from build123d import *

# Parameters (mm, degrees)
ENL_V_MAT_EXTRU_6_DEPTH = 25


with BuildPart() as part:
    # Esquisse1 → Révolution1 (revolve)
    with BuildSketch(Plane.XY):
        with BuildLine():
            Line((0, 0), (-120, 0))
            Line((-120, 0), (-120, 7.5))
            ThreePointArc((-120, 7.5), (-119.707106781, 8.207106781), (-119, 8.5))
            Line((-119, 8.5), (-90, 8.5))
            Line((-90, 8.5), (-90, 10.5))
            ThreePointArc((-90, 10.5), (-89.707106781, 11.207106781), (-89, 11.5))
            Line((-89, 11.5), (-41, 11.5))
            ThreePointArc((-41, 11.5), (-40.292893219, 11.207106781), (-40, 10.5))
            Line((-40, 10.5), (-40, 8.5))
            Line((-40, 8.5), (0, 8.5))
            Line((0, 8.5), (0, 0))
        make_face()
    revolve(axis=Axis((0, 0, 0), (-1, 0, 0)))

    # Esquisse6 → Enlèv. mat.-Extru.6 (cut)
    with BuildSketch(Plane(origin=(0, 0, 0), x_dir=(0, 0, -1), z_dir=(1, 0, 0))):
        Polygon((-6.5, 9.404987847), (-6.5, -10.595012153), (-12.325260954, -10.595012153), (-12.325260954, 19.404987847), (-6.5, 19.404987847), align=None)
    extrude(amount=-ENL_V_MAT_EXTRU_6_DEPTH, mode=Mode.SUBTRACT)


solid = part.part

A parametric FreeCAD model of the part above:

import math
import FreeCAD as App
import Part
import Sketcher

V = App.Vector
Q = App.Units.Quantity

doc = App.newDocument("Part")
body = doc.addObject("PartDesign::Body", "Body")

# Sketch on XY plane
sketch1 = body.newObject("Sketcher::SketchObject", "Sketch")
sketch1.AttachmentSupport = (doc.getObject("XY_Plane"), [""])
sketch1.MapMode = "FlatFace"
sketch1.addGeometry([
    Part.LineSegment(V(-120, 0, 0), V(0, 0, 0)),  # 0
    Part.LineSegment(V(0, 0, 0), V(0, 8.5, 0)),  # 1
    Part.LineSegment(V(0, 8.5, 0), V(-40, 8.5, 0)),  # 2
    Part.LineSegment(V(-40, 8.5, 0), V(-40, 10.5, 0)),  # 3
    Part.ArcOfCircle(Part.Circle(V(-41, 10.5, 0), V(0, 0, 1), 1), math.radians(0), math.radians(90)),  # 4
    Part.LineSegment(V(-41, 11.5, 0), V(-89, 11.5, 0)),  # 5
    Part.ArcOfCircle(Part.Circle(V(-89, 10.5, 0), V(0, 0, 1), 1), math.radians(90), math.radians(180)),  # 6
    Part.LineSegment(V(-90, 10.5, 0), V(-90, 8.5, 0)),  # 7
    Part.LineSegment(V(-90, 8.5, 0), V(-119, 8.5, 0)),  # 8
    Part.ArcOfCircle(Part.Circle(V(-119, 7.5, 0), V(0, 0, 1), 1), math.radians(90), math.radians(180)),  # 9
    Part.LineSegment(V(-120, 7.5, 0), V(-120, 0, 0)),  # 10
], False)
sketch1.addConstraint([
    Sketcher.Constraint("Coincident", 0, 2, 1, 1),
    Sketcher.Constraint("Coincident", 1, 2, 2, 1),
    Sketcher.Constraint("Coincident", 2, 2, 3, 1),
    Sketcher.Constraint("Tangent", 3, 2, 4, 1),
    Sketcher.Constraint("Tangent", 4, 2, 5, 1),
    Sketcher.Constraint("Tangent", 5, 2, 6, 1),
    Sketcher.Constraint("Tangent", 6, 2, 7, 1),
    Sketcher.Constraint("Coincident", 7, 2, 8, 1),
    Sketcher.Constraint("Tangent", 8, 2, 9, 1),
    Sketcher.Constraint("Tangent", 9, 2, 10, 1),
    Sketcher.Constraint("Coincident", 10, 2, 0, 1),
    Sketcher.Constraint("Horizontal", 0),
    Sketcher.Constraint("Vertical", 1),
    Sketcher.Constraint("Horizontal", 2),
    Sketcher.Constraint("Vertical", 3),
    Sketcher.Constraint("Horizontal", 5),
    Sketcher.Constraint("Vertical", 7),
    Sketcher.Constraint("Horizontal", 8),
    Sketcher.Constraint("Vertical", 10),
    Sketcher.Constraint("Coincident", 0, 2, -1, 1),
    Sketcher.Constraint("Equal", 4, 6),
    Sketcher.Constraint("Equal", 6, 9),
    Sketcher.Constraint("Horizontal", 2, 2, 7, 2),
    Sketcher.Constraint("Radius", 4, Q("1 mm")),
    Sketcher.Constraint("DistanceX", 0, 1, 0, 2, Q("120 mm")),
    Sketcher.Constraint("DistanceX", 2, 2, 2, 1, Q("40 mm")),
    Sketcher.Constraint("DistanceX", 5, 2, 5, 1, Q("48 mm")),
    Sketcher.Constraint("DistanceY", 3, 1, 3, 2, Q("2 mm")),
    Sketcher.Constraint("DistanceY", 1, 1, 1, 2, Q("8.5 mm")),
])
revolution = body.newObject("PartDesign::Revolution", "Revolution")
revolution.Profile = sketch1
revolution.ReferenceAxis = (sketch1, ["H_Axis"])
revolution.Angle = 360

# Sketch on YZ plane
sketch2 = body.newObject("Sketcher::SketchObject", "Sketch001")
sketch2.AttachmentSupport = (doc.getObject("YZ_Plane"), [""])
sketch2.MapMode = "FlatFace"
sketch2.addGeometry([
    Part.LineSegment(V(-11, 6, 0), V(19, 6, 0)),
    Part.LineSegment(V(19, 6, 0), V(19, 12, 0)),
    Part.LineSegment(V(19, 12, 0), V(-11, 12, 0)),
    Part.LineSegment(V(-11, 12, 0), V(-11, 6, 0)),
], False)
sketch2.addConstraint([
    Sketcher.Constraint("Coincident", 0, 2, 1, 1),
    Sketcher.Constraint("Coincident", 1, 2, 2, 1),
    Sketcher.Constraint("Coincident", 2, 2, 3, 1),
    Sketcher.Constraint("Coincident", 3, 2, 0, 1),
    Sketcher.Constraint("Horizontal", 0),
    Sketcher.Constraint("Vertical", 1),
    Sketcher.Constraint("Horizontal", 2),
    Sketcher.Constraint("Vertical", 3),
    Sketcher.Constraint("DistanceX", 0, 1, 0, 2, Q("30 mm")),
    Sketcher.Constraint("DistanceY", -1, 1, 0, 2, Q("6.5 mm")),
    Sketcher.Constraint("DistanceY", 1, 1, 1, 2, Q("5.825261 mm")),
    Sketcher.Constraint("DistanceX", -1, 1, 0, 2, Q("19.404988 mm")),
])
pocket1 = body.newObject("PartDesign::Pocket", "Pocket")
pocket1.Profile = sketch2
pocket1.Length = 25

doc.recompute()
